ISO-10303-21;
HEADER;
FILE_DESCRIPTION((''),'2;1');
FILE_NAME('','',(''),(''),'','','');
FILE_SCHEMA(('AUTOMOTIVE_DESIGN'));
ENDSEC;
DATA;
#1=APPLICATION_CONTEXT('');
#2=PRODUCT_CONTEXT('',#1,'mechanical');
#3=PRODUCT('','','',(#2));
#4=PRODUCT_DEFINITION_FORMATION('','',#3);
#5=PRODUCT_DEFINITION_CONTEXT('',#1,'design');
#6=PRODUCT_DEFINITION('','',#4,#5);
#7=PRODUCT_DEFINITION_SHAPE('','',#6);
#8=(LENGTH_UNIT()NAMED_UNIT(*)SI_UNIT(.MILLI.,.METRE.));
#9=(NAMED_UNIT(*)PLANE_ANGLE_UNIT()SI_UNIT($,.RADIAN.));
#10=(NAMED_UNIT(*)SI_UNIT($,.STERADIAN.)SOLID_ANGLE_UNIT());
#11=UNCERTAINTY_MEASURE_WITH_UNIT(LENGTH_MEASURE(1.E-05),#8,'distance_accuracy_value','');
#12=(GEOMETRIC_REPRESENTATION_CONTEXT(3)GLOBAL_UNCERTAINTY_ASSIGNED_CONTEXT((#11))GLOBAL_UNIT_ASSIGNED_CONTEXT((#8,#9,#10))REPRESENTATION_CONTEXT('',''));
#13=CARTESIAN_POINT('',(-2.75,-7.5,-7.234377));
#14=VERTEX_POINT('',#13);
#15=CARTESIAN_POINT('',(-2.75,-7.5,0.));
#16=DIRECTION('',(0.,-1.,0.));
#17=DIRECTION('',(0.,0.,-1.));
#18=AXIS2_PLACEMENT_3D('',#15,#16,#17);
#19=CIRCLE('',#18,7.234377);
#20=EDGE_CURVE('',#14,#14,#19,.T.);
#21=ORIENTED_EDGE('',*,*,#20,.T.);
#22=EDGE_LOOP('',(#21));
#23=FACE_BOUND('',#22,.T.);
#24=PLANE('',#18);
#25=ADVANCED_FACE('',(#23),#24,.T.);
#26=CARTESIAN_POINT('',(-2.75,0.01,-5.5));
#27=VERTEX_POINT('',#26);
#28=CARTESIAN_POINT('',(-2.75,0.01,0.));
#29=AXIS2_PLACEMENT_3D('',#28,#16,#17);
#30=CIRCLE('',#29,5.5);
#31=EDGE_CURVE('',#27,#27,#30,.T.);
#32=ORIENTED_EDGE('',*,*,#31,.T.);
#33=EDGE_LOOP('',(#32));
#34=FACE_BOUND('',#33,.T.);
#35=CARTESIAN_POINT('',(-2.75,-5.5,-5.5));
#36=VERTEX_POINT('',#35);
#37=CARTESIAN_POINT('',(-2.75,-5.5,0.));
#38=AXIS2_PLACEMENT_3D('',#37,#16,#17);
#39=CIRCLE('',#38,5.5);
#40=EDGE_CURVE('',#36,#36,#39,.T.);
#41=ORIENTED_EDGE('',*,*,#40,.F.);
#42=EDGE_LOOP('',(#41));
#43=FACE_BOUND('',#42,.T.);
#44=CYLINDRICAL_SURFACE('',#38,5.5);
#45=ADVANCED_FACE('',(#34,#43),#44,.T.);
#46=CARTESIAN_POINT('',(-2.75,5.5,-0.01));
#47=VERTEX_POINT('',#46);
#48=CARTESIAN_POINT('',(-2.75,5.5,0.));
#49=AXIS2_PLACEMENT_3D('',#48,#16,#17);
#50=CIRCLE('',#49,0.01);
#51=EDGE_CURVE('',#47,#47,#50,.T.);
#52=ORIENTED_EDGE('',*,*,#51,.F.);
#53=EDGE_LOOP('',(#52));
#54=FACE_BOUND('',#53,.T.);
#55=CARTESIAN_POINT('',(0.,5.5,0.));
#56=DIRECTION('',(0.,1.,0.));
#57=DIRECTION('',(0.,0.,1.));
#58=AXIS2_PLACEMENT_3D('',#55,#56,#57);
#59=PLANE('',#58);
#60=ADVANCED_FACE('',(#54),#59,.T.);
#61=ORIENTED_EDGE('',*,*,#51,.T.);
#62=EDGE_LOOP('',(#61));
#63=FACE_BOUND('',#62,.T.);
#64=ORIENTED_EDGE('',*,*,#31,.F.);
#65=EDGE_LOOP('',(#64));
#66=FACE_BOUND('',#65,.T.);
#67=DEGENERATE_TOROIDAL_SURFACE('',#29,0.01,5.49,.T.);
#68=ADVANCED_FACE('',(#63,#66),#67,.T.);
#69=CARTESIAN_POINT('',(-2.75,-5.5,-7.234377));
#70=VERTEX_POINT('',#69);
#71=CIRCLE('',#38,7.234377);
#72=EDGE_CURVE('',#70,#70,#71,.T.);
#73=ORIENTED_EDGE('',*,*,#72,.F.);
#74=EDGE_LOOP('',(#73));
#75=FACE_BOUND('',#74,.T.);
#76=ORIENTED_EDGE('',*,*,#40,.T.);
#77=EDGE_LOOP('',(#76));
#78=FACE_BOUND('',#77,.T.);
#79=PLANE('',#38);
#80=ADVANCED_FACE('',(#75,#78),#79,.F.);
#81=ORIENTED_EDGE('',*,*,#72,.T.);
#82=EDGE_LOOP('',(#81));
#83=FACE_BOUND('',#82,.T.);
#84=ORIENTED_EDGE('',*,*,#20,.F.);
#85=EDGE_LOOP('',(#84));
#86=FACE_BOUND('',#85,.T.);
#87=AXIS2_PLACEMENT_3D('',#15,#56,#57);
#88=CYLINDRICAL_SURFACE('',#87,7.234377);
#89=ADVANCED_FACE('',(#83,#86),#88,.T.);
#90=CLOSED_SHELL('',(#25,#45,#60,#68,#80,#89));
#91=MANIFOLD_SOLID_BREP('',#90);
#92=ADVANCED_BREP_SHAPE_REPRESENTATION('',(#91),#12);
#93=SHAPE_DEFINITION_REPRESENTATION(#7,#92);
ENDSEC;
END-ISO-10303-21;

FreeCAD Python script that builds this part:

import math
import FreeCAD as App
import Part
import Sketcher
Q = App.Units.Quantity

doc = App.newDocument("Part")
params = doc.addObject("Spreadsheet::Sheet", "Params")
for row, (alias, value) in enumerate([
    ("sketch1_height", "11 mm"),
    ("sketch1_radius", "5.49 mm"),
    ("sketch1_width", "5.5 mm"),
    ("sketch1_width2", "0.01 mm"),
    ("revolution_angle", "360 deg"),
    ("pad1_length", "2 mm"),
], start=1):
    params.set(f"A{row}", alias)
    params.set(f"B{row}", "=" + value)
    params.setAlias(f"B{row}", alias)

body = doc.addObject("PartDesign::Body", "Body")

# Sketch on XY plane
sketch1 = doc.addObject("Sketcher::SketchObject", "Sketch")
body.addObject(sketch1)
sketch1.AttachmentSupport = (doc.XY_Plane, [""])
sketch1.MapMode = "FlatFace"
sketch1.addGeometry([
    Part.LineSegment(App.Vector(2.75, -5.5, 0), App.Vector(2.75, 0.01, 0)),  # 0
    Part.ArcOfCircle(Part.Circle(App.Vector(-2.74, 0.01, 0), App.Vector(0, 0, 1), 5.49), math.radians(0), math.radians(90)),  # 1
    Part.LineSegment(App.Vector(-2.74, 5.5, 0), App.Vector(-2.75, 5.5, 0)),  # 2
    Part.LineSegment(App.Vector(-2.75, 5.5, 0), App.Vector(-2.75, -5.5, 0)),  # 3
    Part.LineSegment(App.Vector(-2.75, -5.5, 0), App.Vector(2.75, -5.5, 0)),  # 4
], False)
sketch1.addGeometry(Part.LineSegment(App.Vector(-2.75, -5.5, 0), App.Vector(-2.75, 5.5, 0)), True)  # axis
sketch1.addConstraint([
    Sketcher.Constraint("Tangent", 0, 2, 1, 1),
    Sketcher.Constraint("Tangent", 1, 2, 2, 1),
    Sketcher.Constraint("Coincident", 2, 2, 3, 1),
    Sketcher.Constraint("Coincident", 3, 2, 4, 1),
    Sketcher.Constraint("Coincident", 4, 2, 0, 1),
    Sketcher.Constraint("Vertical", 0),
    Sketcher.Constraint("Vertical", 3),
    Sketcher.Constraint("Horizontal", 4),
    Sketcher.Constraint("Vertical", 5),
    Sketcher.Constraint("Coincident", 5, 1, 3, 2),
    Sketcher.Constraint("Symmetric", 2, 2, 4, 2, -1, 1),
    Sketcher.Constraint("Horizontal", 1, 2, 5, 2),
    Sketcher.Constraint("DistanceY", 3, 2, 3, 1, Q("11 mm")),
    Sketcher.Constraint("Radius", 1, Q("5.49 mm")),
    Sketcher.Constraint("DistanceX", 4, 1, 4, 2, Q("5.5 mm")),
    Sketcher.Constraint("DistanceX", 2, 2, 2, 1, Q("0.01 mm")),
])
sketch1.setExpression("Constraints[12]", "Params.sketch1_height")
sketch1.setExpression("Constraints[13]", "Params.sketch1_radius")
sketch1.setExpression("Constraints[14]", "Params.sketch1_width")
sketch1.setExpression("Constraints[15]", "Params.sketch1_width2")
revolution = doc.addObject("PartDesign::Revolution", "Revolution")
body.addObject(revolution)
revolution.Profile = sketch1
revolution.ReferenceAxis = (sketch1, ["Axis0"])
revolution.setExpression("Angle", "Params.revolution_angle")

# Sketch on XZ plane
sketch2 = doc.addObject("Sketcher::SketchObject", "Sketch001")
body.addObject(sketch2)
sketch2.AttachmentSupport = (doc.XZ_Plane, [""])
sketch2.MapMode = "FlatFace"
sketch2.AttachmentOffset = App.Placement(App.Vector(0, 0, 5.5), App.Rotation())
sketch2.addGeometry(Part.Circle(App.Vector(-3, 0, 0), App.Vector(0, 0, 1), 7), False)
sketch2.addConstraint([
    Sketcher.Constraint("PointOnObject", 0, 3, -1),
    Sketcher.Constraint("DistanceX", 0, 3, -1, 1, Q("2.75 mm")),
    Sketcher.Constraint("Diameter", 0, Q("14.468753 mm")),
])
pad1 = doc.addObject("PartDesign::Pad", "Pad")
body.addObject(pad1)
pad1.Profile = sketch2
pad1.setExpression("Length", "Params.pad1_length")

doc.recompute()
